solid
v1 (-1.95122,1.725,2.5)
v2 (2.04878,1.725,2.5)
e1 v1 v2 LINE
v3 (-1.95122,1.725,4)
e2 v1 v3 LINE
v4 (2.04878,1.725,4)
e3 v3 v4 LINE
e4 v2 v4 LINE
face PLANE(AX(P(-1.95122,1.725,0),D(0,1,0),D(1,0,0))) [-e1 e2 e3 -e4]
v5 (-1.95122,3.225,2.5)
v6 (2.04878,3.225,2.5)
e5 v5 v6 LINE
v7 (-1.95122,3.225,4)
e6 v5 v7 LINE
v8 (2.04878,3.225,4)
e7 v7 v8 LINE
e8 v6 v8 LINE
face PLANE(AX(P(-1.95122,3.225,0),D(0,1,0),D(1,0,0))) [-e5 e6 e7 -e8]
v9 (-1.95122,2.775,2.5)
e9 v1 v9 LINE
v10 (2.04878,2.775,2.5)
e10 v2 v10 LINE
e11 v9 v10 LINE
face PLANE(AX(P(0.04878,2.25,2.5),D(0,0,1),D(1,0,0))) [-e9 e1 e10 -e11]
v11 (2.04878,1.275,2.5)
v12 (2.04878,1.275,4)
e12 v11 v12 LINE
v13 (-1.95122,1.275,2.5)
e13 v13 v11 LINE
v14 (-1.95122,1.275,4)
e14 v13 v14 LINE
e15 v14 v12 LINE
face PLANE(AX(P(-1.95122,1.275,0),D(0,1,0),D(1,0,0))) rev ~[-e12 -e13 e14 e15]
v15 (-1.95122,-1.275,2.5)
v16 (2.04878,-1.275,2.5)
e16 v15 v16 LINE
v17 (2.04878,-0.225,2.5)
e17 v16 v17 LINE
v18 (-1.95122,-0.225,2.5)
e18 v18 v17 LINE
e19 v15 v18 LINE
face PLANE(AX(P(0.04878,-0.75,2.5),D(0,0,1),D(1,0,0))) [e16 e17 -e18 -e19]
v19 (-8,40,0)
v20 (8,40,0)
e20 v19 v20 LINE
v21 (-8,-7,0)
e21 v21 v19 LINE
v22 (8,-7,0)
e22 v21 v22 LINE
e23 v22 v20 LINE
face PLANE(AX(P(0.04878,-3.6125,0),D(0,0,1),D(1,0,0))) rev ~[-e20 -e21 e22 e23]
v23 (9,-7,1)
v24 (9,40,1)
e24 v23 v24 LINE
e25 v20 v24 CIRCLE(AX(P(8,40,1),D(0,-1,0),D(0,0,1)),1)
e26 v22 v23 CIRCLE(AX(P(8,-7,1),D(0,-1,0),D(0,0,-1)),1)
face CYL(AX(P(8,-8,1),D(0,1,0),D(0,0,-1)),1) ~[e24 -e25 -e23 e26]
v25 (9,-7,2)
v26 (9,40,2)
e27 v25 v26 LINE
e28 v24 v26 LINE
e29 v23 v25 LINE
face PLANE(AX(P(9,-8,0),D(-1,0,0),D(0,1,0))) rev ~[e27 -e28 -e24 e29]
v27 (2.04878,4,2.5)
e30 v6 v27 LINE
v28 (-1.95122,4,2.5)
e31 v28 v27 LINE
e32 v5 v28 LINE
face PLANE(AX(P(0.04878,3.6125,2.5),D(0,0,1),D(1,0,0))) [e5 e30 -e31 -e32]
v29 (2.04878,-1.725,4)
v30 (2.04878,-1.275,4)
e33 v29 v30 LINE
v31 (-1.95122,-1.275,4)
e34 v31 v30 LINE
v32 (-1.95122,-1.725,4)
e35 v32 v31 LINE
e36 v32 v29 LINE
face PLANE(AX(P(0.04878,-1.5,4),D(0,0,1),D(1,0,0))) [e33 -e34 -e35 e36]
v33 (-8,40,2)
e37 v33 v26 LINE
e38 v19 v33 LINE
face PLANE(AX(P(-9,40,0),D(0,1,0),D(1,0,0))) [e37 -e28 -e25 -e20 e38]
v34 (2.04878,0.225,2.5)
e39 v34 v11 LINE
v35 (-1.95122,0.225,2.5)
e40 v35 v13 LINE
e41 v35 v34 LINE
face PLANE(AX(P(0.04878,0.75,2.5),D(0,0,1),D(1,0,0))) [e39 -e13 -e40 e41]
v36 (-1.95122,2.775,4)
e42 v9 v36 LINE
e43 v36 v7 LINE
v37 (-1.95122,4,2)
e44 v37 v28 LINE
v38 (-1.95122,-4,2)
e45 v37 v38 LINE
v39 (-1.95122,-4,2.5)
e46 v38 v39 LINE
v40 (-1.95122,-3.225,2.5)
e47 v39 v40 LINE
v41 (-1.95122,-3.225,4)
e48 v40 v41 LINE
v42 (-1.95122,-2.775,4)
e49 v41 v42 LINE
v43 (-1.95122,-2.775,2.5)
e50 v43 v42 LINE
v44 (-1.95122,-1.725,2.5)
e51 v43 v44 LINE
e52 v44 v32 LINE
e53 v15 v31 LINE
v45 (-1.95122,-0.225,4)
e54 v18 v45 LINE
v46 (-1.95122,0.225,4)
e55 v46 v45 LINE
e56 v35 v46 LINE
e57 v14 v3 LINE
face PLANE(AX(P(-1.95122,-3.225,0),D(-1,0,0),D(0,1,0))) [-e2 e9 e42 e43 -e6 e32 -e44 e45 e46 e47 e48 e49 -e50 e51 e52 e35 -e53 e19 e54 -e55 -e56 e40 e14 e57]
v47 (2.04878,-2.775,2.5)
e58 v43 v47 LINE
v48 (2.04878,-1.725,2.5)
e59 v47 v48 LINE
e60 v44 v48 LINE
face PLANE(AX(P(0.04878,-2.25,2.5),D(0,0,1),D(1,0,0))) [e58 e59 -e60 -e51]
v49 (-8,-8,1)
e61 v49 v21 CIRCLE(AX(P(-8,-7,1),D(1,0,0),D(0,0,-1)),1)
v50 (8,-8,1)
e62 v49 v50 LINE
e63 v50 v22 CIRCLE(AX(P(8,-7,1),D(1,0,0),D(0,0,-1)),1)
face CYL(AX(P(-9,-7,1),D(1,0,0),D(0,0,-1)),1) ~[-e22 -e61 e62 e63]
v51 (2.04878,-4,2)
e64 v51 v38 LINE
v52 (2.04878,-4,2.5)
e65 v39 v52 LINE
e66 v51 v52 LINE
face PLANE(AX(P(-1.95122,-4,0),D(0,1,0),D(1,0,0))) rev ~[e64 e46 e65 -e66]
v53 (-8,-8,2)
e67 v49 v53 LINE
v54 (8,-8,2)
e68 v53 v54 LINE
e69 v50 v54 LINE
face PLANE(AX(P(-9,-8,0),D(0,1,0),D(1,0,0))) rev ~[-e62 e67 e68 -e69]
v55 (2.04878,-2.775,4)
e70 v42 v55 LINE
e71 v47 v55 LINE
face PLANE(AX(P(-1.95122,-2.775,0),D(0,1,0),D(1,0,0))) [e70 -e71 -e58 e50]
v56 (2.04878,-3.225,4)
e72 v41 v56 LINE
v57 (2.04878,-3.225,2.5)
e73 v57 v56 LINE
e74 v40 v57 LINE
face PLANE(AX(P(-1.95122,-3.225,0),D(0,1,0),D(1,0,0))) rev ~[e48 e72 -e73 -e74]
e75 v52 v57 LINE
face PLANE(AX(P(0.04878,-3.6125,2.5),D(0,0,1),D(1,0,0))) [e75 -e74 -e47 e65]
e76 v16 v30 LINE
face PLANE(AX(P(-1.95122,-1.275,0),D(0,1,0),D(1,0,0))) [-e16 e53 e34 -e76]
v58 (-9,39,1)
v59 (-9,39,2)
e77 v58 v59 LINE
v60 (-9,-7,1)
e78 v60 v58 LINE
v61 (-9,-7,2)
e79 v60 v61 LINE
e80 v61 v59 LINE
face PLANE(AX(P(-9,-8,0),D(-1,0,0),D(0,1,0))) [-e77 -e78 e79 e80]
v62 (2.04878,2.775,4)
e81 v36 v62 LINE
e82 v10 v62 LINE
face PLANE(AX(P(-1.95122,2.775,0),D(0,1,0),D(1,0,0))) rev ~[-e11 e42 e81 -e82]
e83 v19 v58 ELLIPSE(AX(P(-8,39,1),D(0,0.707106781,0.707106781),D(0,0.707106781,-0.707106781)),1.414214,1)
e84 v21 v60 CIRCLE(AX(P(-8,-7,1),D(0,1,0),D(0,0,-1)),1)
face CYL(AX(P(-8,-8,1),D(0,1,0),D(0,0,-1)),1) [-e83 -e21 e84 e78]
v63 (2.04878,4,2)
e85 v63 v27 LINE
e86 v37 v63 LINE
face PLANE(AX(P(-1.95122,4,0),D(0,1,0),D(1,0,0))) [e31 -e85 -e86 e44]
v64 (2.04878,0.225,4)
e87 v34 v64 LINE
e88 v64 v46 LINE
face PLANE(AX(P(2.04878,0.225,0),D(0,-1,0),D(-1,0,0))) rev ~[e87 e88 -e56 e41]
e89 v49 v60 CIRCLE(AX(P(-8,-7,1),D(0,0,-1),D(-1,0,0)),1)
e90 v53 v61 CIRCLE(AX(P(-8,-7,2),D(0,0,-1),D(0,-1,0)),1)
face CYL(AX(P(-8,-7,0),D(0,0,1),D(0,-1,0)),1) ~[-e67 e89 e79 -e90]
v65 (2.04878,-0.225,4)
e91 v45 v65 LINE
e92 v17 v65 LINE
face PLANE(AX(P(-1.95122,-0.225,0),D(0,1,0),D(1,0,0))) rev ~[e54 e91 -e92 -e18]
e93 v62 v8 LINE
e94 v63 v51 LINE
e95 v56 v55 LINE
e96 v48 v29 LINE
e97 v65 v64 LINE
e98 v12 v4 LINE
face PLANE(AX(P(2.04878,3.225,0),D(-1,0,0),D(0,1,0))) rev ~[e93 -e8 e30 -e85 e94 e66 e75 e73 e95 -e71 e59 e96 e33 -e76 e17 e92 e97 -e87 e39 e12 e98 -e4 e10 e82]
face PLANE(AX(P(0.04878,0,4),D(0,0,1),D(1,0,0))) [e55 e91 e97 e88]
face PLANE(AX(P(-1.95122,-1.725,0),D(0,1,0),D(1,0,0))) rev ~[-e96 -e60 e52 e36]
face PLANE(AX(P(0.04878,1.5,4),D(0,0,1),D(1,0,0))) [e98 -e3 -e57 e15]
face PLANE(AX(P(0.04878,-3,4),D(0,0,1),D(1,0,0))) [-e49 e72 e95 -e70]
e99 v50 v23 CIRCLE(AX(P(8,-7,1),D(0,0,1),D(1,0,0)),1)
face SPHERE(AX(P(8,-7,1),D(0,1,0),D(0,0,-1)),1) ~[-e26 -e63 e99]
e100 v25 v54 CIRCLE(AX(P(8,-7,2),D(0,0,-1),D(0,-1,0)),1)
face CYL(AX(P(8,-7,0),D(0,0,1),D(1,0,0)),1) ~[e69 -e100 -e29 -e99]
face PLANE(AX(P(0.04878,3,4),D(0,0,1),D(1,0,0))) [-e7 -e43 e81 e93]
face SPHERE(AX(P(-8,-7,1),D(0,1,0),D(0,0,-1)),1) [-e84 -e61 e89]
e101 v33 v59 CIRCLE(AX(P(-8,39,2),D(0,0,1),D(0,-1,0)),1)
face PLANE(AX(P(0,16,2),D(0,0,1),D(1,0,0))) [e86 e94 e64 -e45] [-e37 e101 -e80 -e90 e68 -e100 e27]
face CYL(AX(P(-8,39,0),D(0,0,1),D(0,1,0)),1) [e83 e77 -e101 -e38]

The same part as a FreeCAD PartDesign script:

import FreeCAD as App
import Part
import Sketcher

V = App.Vector
Q = App.Units.Quantity


def edges_at(feature, points):
    """Names of the edges that pass closest to the given points."""
    edges = feature.Shape.Edges
    near = lambda p: min(range(len(edges)), key=lambda i: edges[i].distToShape(Part.Vertex(*p))[0])
    return sorted({f"Edge{near(p) + 1}" for p in points})

doc = App.newDocument("Part")
params = doc.addObject("Spreadsheet::Sheet", "Params")
for row, (alias, value) in enumerate([
    ("sketch1_width", "18 mm"),
    ("sketch1_width2", "4 mm"),
    ("sketch1_height", "48 mm"),
    ("sketch1_height2", "8 mm"),
    ("pad1_length", "2 mm"),
    ("sketch2_width", "4 mm"),
    ("sketch2_height", "1.05 mm"),
    ("pad2_length", "2.5 mm"),
    ("sketch3_width", "4 mm"),
    ("sketch3_height", "0.45 mm"),
    ("pad3_length", "4 mm"),
    ("fillet_radius", "1 mm"),
], start=1):
    params.set(f"A{row}", alias)
    params.set(f"B{row}", "=" + value)
    params.setAlias(f"B{row}", alias)

body = doc.addObject("PartDesign::Body", "Body")

# Sketch on XY plane
sketch1 = body.newObject("Sketcher::SketchObject", "Sketch")
sketch1.AttachmentSupport = (doc.getObject("XY_Plane"), [""])
sketch1.MapMode = "FlatFace"
sketch1.addGeometry([
    Part.LineSegment(V(-9, 40, 0), V(-9, -8, 0)),  # 0
    Part.LineSegment(V(-9, -8, 0), V(9, -8, 0)),  # 1
    Part.LineSegment(V(9, -8, 0), V(9, 40, 0)),  # 2
    Part.LineSegment(V(9, 40, 0), V(-9, 40, 0)),  # 3
    Part.LineSegment(V(2.04878, 4, 0), V(2.04878, -4, 0)),  # 4
    Part.LineSegment(V(2.04878, -4, 0), V(-1.95122, -4, 0)),  # 5
    Part.LineSegment(V(-1.95122, -4, 0), V(-1.95122, 4, 0)),  # 6
    Part.LineSegment(V(-1.95122, 4, 0), V(2.04878, 4, 0)),  # 7
], False)
sketch1.addConstraint([
    Sketcher.Constraint("Coincident", 0, 2, 1, 1),
    Sketcher.Constraint("Coincident", 1, 2, 2, 1),
    Sketcher.Constraint("Coincident", 2, 2, 3, 1),
    Sketcher.Constraint("Coincident", 3, 2, 0, 1),
    Sketcher.Constraint("Coincident", 4, 2, 5, 1),
    Sketcher.Constraint("Coincident", 5, 2, 6, 1),
    Sketcher.Constraint("Coincident", 6, 2, 7, 1),
    Sketcher.Constraint("Coincident", 7, 2, 4, 1),
    Sketcher.Constraint("Vertical", 0),
    Sketcher.Constraint("Horizontal", 1),
    Sketcher.Constraint("Vertical", 2),
    Sketcher.Constraint("Horizontal", 3),
    Sketcher.Constraint("Vertical", 4),
    Sketcher.Constraint("Horizontal", 5),
    Sketcher.Constraint("Vertical", 6),
    Sketcher.Constraint("Horizontal", 7),
    Sketcher.Constraint("DistanceX", 1, 1, 1, 2, Q("18 mm")),
    Sketcher.Constraint("DistanceX", 5, 2, 5, 1, Q("4 mm")),
    Sketcher.Constraint("DistanceY", 0, 2, 0, 1, Q("48 mm")),
    Sketcher.Constraint("DistanceY", 4, 2, 4, 1, Q("8 mm")),
    Sketcher.Constraint("DistanceX", 0, 2, -1, 1, Q("9 mm")),
    Sketcher.Constraint("DistanceY", 0, 2, -1, 1, Q("8 mm")),
    Sketcher.Constraint("DistanceY", 4, 2, -1, 1, Q("4 mm")),
    Sketcher.Constraint("DistanceX", -1, 1, 4, 2, Q("2.04878 mm")),
])
sketch1.setExpression("Constraints[16]", "Params.sketch1_width")
sketch1.setExpression("Constraints[17]", "Params.sketch1_width2")
sketch1.setExpression("Constraints[18]", "Params.sketch1_height")
sketch1.setExpression("Constraints[19]", "Params.sketch1_height2")
pad1 = body.newObject("PartDesign::Pad", "Pad")
pad1.Profile = sketch1
pad1.setExpression("Length", "Params.pad1_length")

# Sketch on XY plane
sketch2 = body.newObject("Sketcher::SketchObject", "Sketch001")
sketch2.AttachmentSupport = (doc.getObject("XY_Plane"), [""])
sketch2.MapMode = "FlatFace"
sketch2.addGeometry([
    Part.LineSegment(V(-1.95122, -3.225, 0), V(-1.95122, -4, 0)),  # 0
    Part.LineSegment(V(-1.95122, -4, 0), V(2.04878, -4, 0)),  # 1
    Part.LineSegment(V(2.04878, -4, 0), V(2.04878, -3.225, 0)),  # 2
    Part.LineSegment(V(2.04878, -3.225, 0), V(-1.95122, -3.225, 0)),  # 3
    Part.LineSegment(V(-1.95122, -1.725, 0), V(-1.95122, -2.775, 0)),  # 4
    Part.LineSegment(V(-1.95122, -2.775, 0), V(2.04878, -2.775, 0)),  # 5
    Part.LineSegment(V(2.04878, -2.775, 0), V(2.04878, -1.725, 0)),  # 6
    Part.LineSegment(V(2.04878, -1.725, 0), V(-1.95122, -1.725, 0)),  # 7
    Part.LineSegment(V(-1.95122, -0.225, 0), V(-1.95122, -1.275, 0)),  # 8
    Part.LineSegment(V(-1.95122, -1.275, 0), V(2.04878, -1.275, 0)),  # 9
    Part.LineSegment(V(2.04878, -1.275, 0), V(2.04878, -0.225, 0)),  # 10
    Part.LineSegment(V(2.04878, -0.225, 0), V(-1.95122, -0.225, 0)),  # 11
    Part.LineSegment(V(-1.95122, 1.275, 0), V(-1.95122, 0.225, 0)),  # 12
    Part.LineSegment(V(-1.95122, 0.225, 0), V(2.04878, 0.225, 0)),  # 13
    Part.LineSegment(V(2.04878, 0.225, 0), V(2.04878, 1.275, 0)),  # 14
    Part.LineSegment(V(2.04878, 1.275, 0), V(-1.95122, 1.275, 0)),  # 15
    Part.LineSegment(V(-1.95122, 2.775, 0), V(-1.95122, 1.725, 0)),  # 16
    Part.LineSegment(V(-1.95122, 1.725, 0), V(2.04878, 1.725, 0)),  # 17
    Part.LineSegment(V(2.04878, 1.725, 0), V(2.04878, 2.775, 0)),  # 18
    Part.LineSegment(V(2.04878, 2.775, 0), V(-1.95122, 2.775, 0)),  # 19
    Part.LineSegment(V(-1.95122, 4, 0), V(-1.95122, 3.225, 0)),  # 20
    Part.LineSegment(V(-1.95122, 3.225, 0), V(2.04878, 3.225, 0)),  # 21
    Part.LineSegment(V(2.04878, 3.225, 0), V(2.04878, 4, 0)),  # 22
    Part.LineSegment(V(2.04878, 4, 0), V(-1.95122, 4, 0)),  # 23
], False)
sketch2.addConstraint([
    Sketcher.Constraint("Coincident", 0, 2, 1, 1),
    Sketcher.Constraint("Coincident", 1, 2, 2, 1),
    Sketcher.Constraint("Coincident", 2, 2, 3, 1),
    Sketcher.Constraint("Coincident", 3, 2, 0, 1),
    Sketcher.Constraint("Coincident", 4, 2, 5, 1),
    Sketcher.Constraint("Coincident", 5, 2, 6, 1),
    Sketcher.Constraint("Coincident", 6, 2, 7, 1),
    Sketcher.Constraint("Coincident", 7, 2, 4, 1),
    Sketcher.Constraint("Coincident", 8, 2, 9, 1),
    Sketcher.Constraint("Coincident", 9, 2, 10, 1),
    Sketcher.Constraint("Coincident", 10, 2, 11, 1),
    Sketcher.Constraint("Coincident", 11, 2, 8, 1),
    Sketcher.Constraint("Coincident", 12, 2, 13, 1),
    Sketcher.Constraint("Coincident", 13, 2, 14, 1),
    Sketcher.Constraint("Coincident", 14, 2, 15, 1),
    Sketcher.Constraint("Coincident", 15, 2, 12, 1),
    Sketcher.Constraint("Coincident", 16, 2, 17, 1),
    Sketcher.Constraint("Coincident", 17, 2, 18, 1),
    Sketcher.Constraint("Coincident", 18, 2, 19, 1),
    Sketcher.Constraint("Coincident", 19, 2, 16, 1),
    Sketcher.Constraint("Coincident", 20, 2, 21, 1),
    Sketcher.Constraint("Coincident", 21, 2, 22, 1),
    Sketcher.Constraint("Coincident", 22, 2, 23, 1),
    Sketcher.Constraint("Coincident", 23, 2, 20, 1),
    Sketcher.Constraint("Vertical", 0),
    Sketcher.Constraint("Horizontal", 1),
    Sketcher.Constraint("Vertical", 2),
    Sketcher.Constraint("Horizontal", 3),
    Sketcher.Constraint("Vertical", 4),
    Sketcher.Constraint("Horizontal", 5),
    Sketcher.Constraint("Vertical", 6),
    Sketcher.Constraint("Horizontal", 7),
    Sketcher.Constraint("Vertical", 8),
    Sketcher.Constraint("Horizontal", 9),
    Sketcher.Constraint("Vertical", 10),
    Sketcher.Constraint("Horizontal", 11),
    Sketcher.Constraint("Vertical", 12),
    Sketcher.Constraint("Horizontal", 13),
    Sketcher.Constraint("Vertical", 14),
    Sketcher.Constraint("Horizontal", 15),
    Sketcher.Constraint("Vertical", 16),
    Sketcher.Constraint("Horizontal", 17),
    Sketcher.Constraint("Vertical", 18),
    Sketcher.Constraint("Horizontal", 19),
    Sketcher.Constraint("Vertical", 20),
    Sketcher.Constraint("Horizontal", 21),
    Sketcher.Constraint("Vertical", 22),
    Sketcher.Constraint("Horizontal", 23),
    Sketcher.Constraint("Symmetric", 11, 2, 12, 2, -1),
    Sketcher.Constraint("Symmetric", 9, 2, 14, 2, -1),
    Sketcher.Constraint("Symmetric", 7, 2, 16, 2, -1),
    Sketcher.Constraint("Symmetric", 5, 2, 18, 2, -1),
    Sketcher.Constraint("Symmetric", 3, 2, 20, 2, -1),
    Sketcher.Constraint("Symmetric", 1, 2, 22, 2, -1),
    Sketcher.Constraint("Vertical", 3, 2, 4, 2),
    Sketcher.Constraint("Vertical", 2, 2, 5, 2),
    Sketcher.Constraint("Vertical", 7, 2, 8, 2),
    Sketcher.Constraint("Vertical", 6, 2, 9, 2),
    Sketcher.Constraint("Equal", 6, 8),
    Sketcher.Constraint("DistanceX", 1, 1, 1, 2, Q("4 mm")),
    Sketcher.Constraint("DistanceY", 0, 2, -1, 1, Q("4 mm")),
    Sketcher.Constraint("DistanceY", 2, 2, 10, 2, Q("3 mm")),
    Sketcher.Constraint("DistanceY", 4, 2, 12, 2, Q("3 mm")),
    Sketcher.Constraint("DistanceY", 4, 2, 4, 1, Q("1.05 mm")),
    Sketcher.Constraint("DistanceY", 2, 2, 6, 2, Q("1.5 mm")),
    Sketcher.Constraint("DistanceX", 0, 2, -1, 1, Q("1.95122 mm")),
])
sketch2.setExpression("Constraints[59]", "Params.sketch2_width")
sketch2.setExpression("Constraints[63]", "Params.sketch2_height")
pad2 = body.newObject("PartDesign::Pad", "Pad001")
pad2.Profile = sketch2
pad2.setExpression("Length", "Params.pad2_length")

# Sketch on XY plane
sketch3 = body.newObject("Sketcher::SketchObject", "Sketch002")
sketch3.AttachmentSupport = (doc.getObject("XY_Plane"), [""])
sketch3.MapMode = "FlatFace"
sketch3.addGeometry([
    Part.LineSegment(V(-1.95122, -2.775, 0), V(-1.95122, -3.225, 0)),  # 0
    Part.LineSegment(V(-1.95122, -3.225, 0), V(2.04878, -3.225, 0)),  # 1
    Part.LineSegment(V(2.04878, -3.225, 0), V(2.04878, -2.775, 0)),  # 2
    Part.LineSegment(V(2.04878, -2.775, 0), V(-1.95122, -2.775, 0)),  # 3
    Part.LineSegment(V(-1.95122, -1.275, 0), V(-1.95122, -1.725, 0)),  # 4
    Part.LineSegment(V(-1.95122, -1.725, 0), V(2.04878, -1.725, 0)),  # 5
    Part.LineSegment(V(2.04878, -1.725, 0), V(2.04878, -1.275, 0)),  # 6
    Part.LineSegment(V(2.04878, -1.275, 0), V(-1.95122, -1.275, 0)),  # 7
    Part.LineSegment(V(-1.95122, -0.225, 0), V(2.04878, -0.225, 0)),  # 8
    Part.LineSegment(V(2.04878, -0.225, 0), V(2.04878, 0.225, 0)),  # 9
    Part.LineSegment(V(2.04878, 0.225, 0), V(-1.95122, 0.225, 0)),  # 10
    Part.LineSegment(V(-1.95122, 0.225, 0), V(-1.95122, -0.225, 0)),  # 11
    Part.LineSegment(V(-1.95122, 1.725, 0), V(-1.95122, 1.275, 0)),  # 12
    Part.LineSegment(V(-1.95122, 1.275, 0), V(2.04878, 1.275, 0)),  # 13
    Part.LineSegment(V(2.04878, 1.275, 0), V(2.04878, 1.725, 0)),  # 14
    Part.LineSegment(V(2.04878, 1.725, 0), V(-1.95122, 1.725, 0)),  # 15
    Part.LineSegment(V(-1.95122, 3.225, 0), V(-1.95122, 2.775, 0)),  # 16
    Part.LineSegment(V(-1.95122, 2.775, 0), V(2.04878, 2.775, 0)),  # 17
    Part.LineSegment(V(2.04878, 2.775, 0), V(2.04878, 3.225, 0)),  # 18
    Part.LineSegment(V(2.04878, 3.225, 0), V(-1.95122, 3.225, 0)),  # 19
], False)
sketch3.addConstraint([
    Sketcher.Constraint("Coincident", 0, 2, 1, 1),
    Sketcher.Constraint("Coincident", 1, 2, 2, 1),
    Sketcher.Constraint("Coincident", 2, 2, 3, 1),
    Sketcher.Constraint("Coincident", 3, 2, 0, 1),
    Sketcher.Constraint("Coincident", 4, 2, 5, 1),
    Sketcher.Constraint("Coincident", 5, 2, 6, 1),
    Sketcher.Constraint("Coincident", 6, 2, 7, 1),
    Sketcher.Constraint("Coincident", 7, 2, 4, 1),
    Sketcher.Constraint("Coincident", 8, 2, 9, 1),
    Sketcher.Constraint("Coincident", 9, 2, 10, 1),
    Sketcher.Constraint("Coincident", 10, 2, 11, 1),
    Sketcher.Constraint("Coincident", 11, 2, 8, 1),
    Sketcher.Constraint("Coincident", 12, 2, 13, 1),
    Sketcher.Constraint("Coincident", 13, 2, 14, 1),
    Sketcher.Constraint("Coincident", 14, 2, 15, 1),
    Sketcher.Constraint("Coincident", 15, 2, 12, 1),
    Sketcher.Constraint("Coincident", 16, 2, 17, 1),
    Sketcher.Constraint("Coincident", 17, 2, 18, 1),
    Sketcher.Constraint("Coincident", 18, 2, 19, 1),
    Sketcher.Constraint("Coincident", 19, 2, 16, 1),
    Sketcher.Constraint("Vertical", 0),
    Sketcher.Constraint("Horizontal", 1),
    Sketcher.Constraint("Vertical", 2),
    Sketcher.Constraint("Horizontal", 3),
    Sketcher.Constraint("Vertical", 4),
    Sketcher.Constraint("Horizontal", 5),
    Sketcher.Constraint("Vertical", 6),
    Sketcher.Constraint("Horizontal", 7),
    Sketcher.Constraint("Horizontal", 8),
    Sketcher.Constraint("Vertical", 9),
    Sketcher.Constraint("Horizontal", 10),
    Sketcher.Constraint("Vertical", 11),
    Sketcher.Constraint("Vertical", 12),
    Sketcher.Constraint("Horizontal", 13),
    Sketcher.Constraint("Vertical", 14),
    Sketcher.Constraint("Horizontal", 15),
    Sketcher.Constraint("Vertical", 16),
    Sketcher.Constraint("Horizontal", 17),
    Sketcher.Constraint("Vertical", 18),
    Sketcher.Constraint("Horizontal", 19),
    Sketcher.Constraint("Symmetric", 7, 2, 12, 2, -1),
    Sketcher.Constraint("Symmetric", 5, 2, 14, 2, -1),
    Sketcher.Constraint("Symmetric", 3, 2, 16, 2, -1),
    Sketcher.Constraint("Symmetric", 1, 2, 18, 2, -1),
    Sketcher.Constraint("Vertical", 3, 2, 4, 2),
    Sketcher.Constraint("Vertical", 2, 2, 5, 2),
    Sketcher.Constraint("Vertical", 6, 2, 8, 2),
    Sketcher.Constraint("Vertical", 7, 2, 10, 2),
    Sketcher.Constraint("Equal", 2, 4),
    Sketcher.Constraint("Equal", 6, 9),
    Sketcher.Constraint("DistanceX", 1, 1, 1, 2, Q("4 mm")),
    Sketcher.Constraint("DistanceY", 1, 2, 8, 2, Q("3 mm")),
    Sketcher.Constraint("DistanceY", 4, 2, 12, 2, Q("3 mm")),
    Sketcher.Constraint("DistanceY", 11, 2, 16, 2, Q("3 mm")),
    Sketcher.Constraint("DistanceY", 0, 2, 0, 1, Q("0.45 mm")),
    Sketcher.Constraint("DistanceX", 0, 2, -1, 1, Q("1.95122 mm")),
])
sketch3.setExpression("Constraints[50]", "Params.sketch3_width")
sketch3.setExpression("Constraints[54]", "Params.sketch3_height")
pad3 = body.newObject("PartDesign::Pad", "Pad002")
pad3.Profile = sketch3
pad3.setExpression("Length", "Params.pad3_length")
doc.recompute()

fillet = body.newObject("PartDesign::Fillet", "Fillet")
fillet.Base = (pad3, edges_at(pad3, [
    (9, 16, 0),
    (-9, 16, 0),
    (0, -8, 0),
    (-9, 40, 1),
    (9, -8, 1),
    (-9, -8, 1),
]))
fillet.setExpression("Radius", "Params.fillet_radius")

doc.recompute()
